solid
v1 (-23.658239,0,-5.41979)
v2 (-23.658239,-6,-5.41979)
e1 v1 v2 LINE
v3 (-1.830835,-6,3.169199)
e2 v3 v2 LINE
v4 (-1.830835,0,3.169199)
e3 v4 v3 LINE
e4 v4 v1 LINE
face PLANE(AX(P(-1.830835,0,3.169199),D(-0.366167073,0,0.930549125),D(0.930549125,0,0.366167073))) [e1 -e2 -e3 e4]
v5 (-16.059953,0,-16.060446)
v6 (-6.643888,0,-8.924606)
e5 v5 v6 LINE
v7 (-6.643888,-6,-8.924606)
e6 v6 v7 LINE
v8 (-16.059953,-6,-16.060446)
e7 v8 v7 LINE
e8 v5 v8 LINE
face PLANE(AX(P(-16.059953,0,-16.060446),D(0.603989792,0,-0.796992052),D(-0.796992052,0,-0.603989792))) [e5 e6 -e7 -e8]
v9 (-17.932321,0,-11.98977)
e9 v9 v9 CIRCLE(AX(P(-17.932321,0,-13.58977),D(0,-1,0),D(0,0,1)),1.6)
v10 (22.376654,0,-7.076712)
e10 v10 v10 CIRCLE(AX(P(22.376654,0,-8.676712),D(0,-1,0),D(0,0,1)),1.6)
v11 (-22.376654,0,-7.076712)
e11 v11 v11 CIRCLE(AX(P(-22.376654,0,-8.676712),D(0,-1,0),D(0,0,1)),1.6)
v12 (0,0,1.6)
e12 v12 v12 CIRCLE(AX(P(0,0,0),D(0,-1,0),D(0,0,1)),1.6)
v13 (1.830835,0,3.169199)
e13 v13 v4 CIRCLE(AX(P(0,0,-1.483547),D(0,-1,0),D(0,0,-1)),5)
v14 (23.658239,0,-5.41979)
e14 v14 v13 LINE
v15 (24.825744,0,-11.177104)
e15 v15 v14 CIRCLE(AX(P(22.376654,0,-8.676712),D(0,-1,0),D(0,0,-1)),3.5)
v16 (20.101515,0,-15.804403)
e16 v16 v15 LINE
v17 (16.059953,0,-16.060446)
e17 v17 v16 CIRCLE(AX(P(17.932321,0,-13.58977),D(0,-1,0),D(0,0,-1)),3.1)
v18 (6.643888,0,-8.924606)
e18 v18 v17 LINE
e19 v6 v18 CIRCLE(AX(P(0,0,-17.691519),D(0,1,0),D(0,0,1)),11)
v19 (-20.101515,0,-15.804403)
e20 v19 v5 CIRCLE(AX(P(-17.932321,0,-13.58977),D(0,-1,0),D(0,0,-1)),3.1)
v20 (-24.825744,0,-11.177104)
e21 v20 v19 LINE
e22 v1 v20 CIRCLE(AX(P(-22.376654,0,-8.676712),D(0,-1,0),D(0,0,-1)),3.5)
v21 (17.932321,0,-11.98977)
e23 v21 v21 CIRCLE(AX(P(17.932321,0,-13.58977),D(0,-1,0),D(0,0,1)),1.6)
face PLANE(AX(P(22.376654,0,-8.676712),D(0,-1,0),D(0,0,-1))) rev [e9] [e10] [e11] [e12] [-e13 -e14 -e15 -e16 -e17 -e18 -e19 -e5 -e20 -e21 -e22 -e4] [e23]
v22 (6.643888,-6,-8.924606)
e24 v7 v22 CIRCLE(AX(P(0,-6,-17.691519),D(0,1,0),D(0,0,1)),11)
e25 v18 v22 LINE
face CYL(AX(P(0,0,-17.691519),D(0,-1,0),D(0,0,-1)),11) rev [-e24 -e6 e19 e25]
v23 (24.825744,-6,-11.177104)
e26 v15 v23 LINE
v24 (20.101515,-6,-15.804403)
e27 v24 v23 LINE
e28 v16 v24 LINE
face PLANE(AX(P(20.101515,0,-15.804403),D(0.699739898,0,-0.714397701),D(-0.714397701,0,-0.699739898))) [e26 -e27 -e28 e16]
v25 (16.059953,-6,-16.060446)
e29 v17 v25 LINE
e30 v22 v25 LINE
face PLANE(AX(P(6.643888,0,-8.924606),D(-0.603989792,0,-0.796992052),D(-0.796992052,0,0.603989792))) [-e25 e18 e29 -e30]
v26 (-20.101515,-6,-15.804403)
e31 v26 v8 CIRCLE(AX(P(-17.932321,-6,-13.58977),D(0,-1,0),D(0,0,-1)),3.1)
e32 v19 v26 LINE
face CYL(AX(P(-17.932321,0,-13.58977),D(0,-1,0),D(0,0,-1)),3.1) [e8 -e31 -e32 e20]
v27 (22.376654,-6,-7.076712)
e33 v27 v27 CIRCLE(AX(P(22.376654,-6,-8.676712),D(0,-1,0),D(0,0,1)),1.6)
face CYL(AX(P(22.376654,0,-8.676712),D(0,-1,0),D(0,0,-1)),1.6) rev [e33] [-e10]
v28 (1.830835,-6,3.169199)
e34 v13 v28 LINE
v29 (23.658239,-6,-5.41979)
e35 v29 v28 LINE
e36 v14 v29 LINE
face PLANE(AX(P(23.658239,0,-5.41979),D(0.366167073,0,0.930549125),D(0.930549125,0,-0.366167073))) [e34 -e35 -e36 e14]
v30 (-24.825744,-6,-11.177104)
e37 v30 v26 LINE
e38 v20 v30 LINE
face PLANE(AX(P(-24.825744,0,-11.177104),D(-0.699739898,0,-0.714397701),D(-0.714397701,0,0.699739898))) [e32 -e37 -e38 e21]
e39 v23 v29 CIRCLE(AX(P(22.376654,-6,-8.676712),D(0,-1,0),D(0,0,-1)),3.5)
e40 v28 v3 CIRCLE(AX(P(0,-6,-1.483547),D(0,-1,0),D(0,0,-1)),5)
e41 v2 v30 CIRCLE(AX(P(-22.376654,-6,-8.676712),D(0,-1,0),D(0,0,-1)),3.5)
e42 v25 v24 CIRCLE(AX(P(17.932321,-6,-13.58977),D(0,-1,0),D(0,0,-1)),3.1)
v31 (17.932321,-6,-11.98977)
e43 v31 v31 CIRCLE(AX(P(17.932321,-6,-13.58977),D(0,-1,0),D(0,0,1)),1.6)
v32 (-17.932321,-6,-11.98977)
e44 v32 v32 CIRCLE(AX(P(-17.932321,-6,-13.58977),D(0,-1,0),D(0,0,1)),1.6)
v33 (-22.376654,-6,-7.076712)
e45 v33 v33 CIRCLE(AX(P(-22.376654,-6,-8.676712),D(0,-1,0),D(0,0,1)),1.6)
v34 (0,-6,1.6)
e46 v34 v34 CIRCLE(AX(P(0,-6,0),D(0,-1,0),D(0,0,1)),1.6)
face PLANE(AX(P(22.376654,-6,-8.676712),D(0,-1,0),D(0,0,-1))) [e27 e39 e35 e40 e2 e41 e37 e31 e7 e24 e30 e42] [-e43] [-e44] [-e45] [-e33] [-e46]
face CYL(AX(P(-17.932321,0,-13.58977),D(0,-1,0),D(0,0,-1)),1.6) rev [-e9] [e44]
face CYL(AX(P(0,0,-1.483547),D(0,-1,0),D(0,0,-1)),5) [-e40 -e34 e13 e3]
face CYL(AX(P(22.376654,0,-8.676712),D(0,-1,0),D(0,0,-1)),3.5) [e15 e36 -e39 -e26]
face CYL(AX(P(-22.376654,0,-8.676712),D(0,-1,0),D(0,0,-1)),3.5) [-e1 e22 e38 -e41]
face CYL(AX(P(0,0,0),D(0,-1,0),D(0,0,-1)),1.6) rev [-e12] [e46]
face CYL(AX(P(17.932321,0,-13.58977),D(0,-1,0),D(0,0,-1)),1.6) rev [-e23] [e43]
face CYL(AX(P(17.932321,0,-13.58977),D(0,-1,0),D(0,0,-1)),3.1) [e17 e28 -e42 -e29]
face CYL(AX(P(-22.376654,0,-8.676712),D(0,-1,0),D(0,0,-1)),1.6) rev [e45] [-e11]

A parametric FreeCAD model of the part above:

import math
import FreeCAD as App
import Part
import Sketcher

V = App.Vector

doc = App.newDocument("Part")
body = doc.addObject("PartDesign::Body", "Body")

# Sketch on XZ plane
sketch1 = body.newObject("Sketcher::SketchObject", "Sketch")
sketch1.AttachmentSupport = (doc.getObject("XZ_Plane"), [""])
sketch1.MapMode = "FlatFace"
sketch1.AttachmentOffset = App.Placement(V(0, 0, 6), App.Rotation())
sketch1.addGeometry(Part.LineSegment(V(23.658239, -5.41979, 0), V(1.830835, 3.169199, 0)), False)
sketch1.addGeometry(Part.ArcOfCircle(Part.Circle(V(0, -1.483547, 0), V(0, 0, 1), 5), math.radians(68.520576), math.radians(111.479424)), False)
sketch1.addGeometry(Part.LineSegment(V(-1.830835, 3.169199, 0), V(-23.658239, -5.41979, 0)), False)
sketch1.addGeometry(Part.ArcOfCircle(Part.Circle(V(-22.376654, -8.676712, 0), V(0, 0, 1), 3.5), math.radians(111.479424), math.radians(225.59386)), False)
sketch1.addGeometry(Part.LineSegment(V(-24.825744, -11.177104, 0), V(-20.101515, -15.804403, 0)), False)
sketch1.addGeometry(Part.ArcOfCircle(Part.Circle(V(-17.932321, -13.58977, 0), V(0, 0, 1), 3.1), math.radians(-134.40614), math.radians(-52.843817)), False)
sketch1.addGeometry(Part.LineSegment(V(-16.059953, -16.060446, 0), V(-6.643888, -8.924606, 0)), False)
sketch1.addGeometry(Part.ArcOfCircle(Part.Circle(V(0, -17.691519, 0), V(0, 0, 1), 11), math.radians(52.843817), math.radians(127.156183)), False)
sketch1.addGeometry(Part.LineSegment(V(6.643888, -8.924606, 0), V(16.059953, -16.060446, 0)), False)
sketch1.addGeometry(Part.ArcOfCircle(Part.Circle(V(17.932321, -13.58977, 0), V(0, 0, 1), 3.1), math.radians(-127.156183), math.radians(-45.59386)), False)
sketch1.addGeometry(Part.LineSegment(V(20.101515, -15.804403, 0), V(24.825744, -11.177104, 0)), False)
sketch1.addGeometry(Part.ArcOfCircle(Part.Circle(V(22.376654, -8.676712, 0), V(0, 0, 1), 3.5), math.radians(-45.59386), math.radians(68.520576)), False)
sketch1.addGeometry(Part.Circle(V(-17.932321, -13.58977, 0), V(0, 0, 1), 1.6), False)
sketch1.addGeometry(Part.Circle(V(-22.376654, -8.676712, 0), V(0, 0, 1), 1.6), False)
sketch1.addGeometry(Part.Circle(V(17.932321, -13.58977, 0), V(0, 0, 1), 1.6), False)
sketch1.addGeometry(Part.Circle(V(22.376654, -8.676712, 0), V(0, 0, 1), 1.6), False)
sketch1.addGeometry(Part.Circle(V(0, 0, 0), V(0, 0, 1), 1.6), False)
sketch1.addConstraint(Sketcher.Constraint("Tangent", 0, 2, 1, 1))
sketch1.addConstraint(Sketcher.Constraint("Tangent", 1, 2, 2, 1))
sketch1.addConstraint(Sketcher.Constraint("Tangent", 2, 2, 3, 1))
sketch1.addConstraint(Sketcher.Constraint("Tangent", 3, 2, 4, 1))
sketch1.addConstraint(Sketcher.Constraint("Tangent", 4, 2, 5, 1))
sketch1.addConstraint(Sketcher.Constraint("Tangent", 5, 2, 6, 1))
sketch1.addConstraint(Sketcher.Constraint("Tangent", 6, 2, 7, 2))
sketch1.addConstraint(Sketcher.Constraint("Tangent", 7, 1, 8, 1))
sketch1.addConstraint(Sketcher.Constraint("Tangent", 8, 2, 9, 1))
sketch1.addConstraint(Sketcher.Constraint("Tangent", 9, 2, 10, 1))
sketch1.addConstraint(Sketcher.Constraint("Tangent", 10, 2, 11, 1))
sketch1.addConstraint(Sketcher.Constraint("Tangent", 11, 2, 0, 1))
sketch1.addConstraint(Sketcher.Constraint("Coincident", 16, 3, -1, 1))
sketch1.addConstraint(Sketcher.Constraint("Coincident", 12, 3, 5, 3))
sketch1.addConstraint(Sketcher.Constraint("Coincident", 13, 3, 3, 3))
sketch1.addConstraint(Sketcher.Constraint("Coincident", 14, 3, 9, 3))
sketch1.addConstraint(Sketcher.Constraint("Coincident", 15, 3, 11, 3))
sketch1.addConstraint(Sketcher.Constraint("Equal", 5, 9))
sketch1.addConstraint(Sketcher.Constraint("Equal", 3, 11))
sketch1.addConstraint(Sketcher.Constraint("Equal", 12, 13))
sketch1.addConstraint(Sketcher.Constraint("Equal", 13, 14))
sketch1.addConstraint(Sketcher.Constraint("Equal", 14, 15))
sketch1.addConstraint(Sketcher.Constraint("Equal", 15, 16))
sketch1.addConstraint(Sketcher.Constraint("Symmetric", 5, 3, 9, 3, -2))
sketch1.addConstraint(Sketcher.Constraint("Symmetric", 3, 3, 11, 3, -2))
sketch1.addConstraint(Sketcher.Constraint("PointOnObject", 1, 3, -2))
sketch1.addConstraint(Sketcher.Constraint("PointOnObject", 7, 3, -2))
sketch1.addConstraint(Sketcher.Constraint("Radius", 1, 5.0))
sketch1.addConstraint(Sketcher.Constraint("Radius", 7, 11.0))
sketch1.addConstraint(Sketcher.Constraint("Diameter", 12, 3.2))
sketch1.addConstraint(Sketcher.Constraint("Radius", 3, 3.5))
sketch1.addConstraint(Sketcher.Constraint("Radius", 5, 3.1))
sketch1.addConstraint(Sketcher.Constraint("DistanceY", -1, 1, 0, 2, 3.169199))
sketch1.addConstraint(Sketcher.Constraint("DistanceY", 4, 2, 3, 2, 4.627299))
sketch1.addConstraint(Sketcher.Constraint("DistanceX", 3, 3, 5, 2, 6.316702))
sketch1.addConstraint(Sketcher.Constraint("DistanceX", 5, 3, -1, 1, 17.932321))
sketch1.addConstraint(Sketcher.Constraint("DistanceY", 5, 3, -1, 1, 13.58977))
sketch1.addConstraint(Sketcher.Constraint("DistanceY", 7, 3, -1, 1, 17.691519))
pad1 = body.newObject("PartDesign::Pad", "Pad")
pad1.Profile = sketch1
pad1.Length = 6
pad1.Reversed = True

doc.recompute()
